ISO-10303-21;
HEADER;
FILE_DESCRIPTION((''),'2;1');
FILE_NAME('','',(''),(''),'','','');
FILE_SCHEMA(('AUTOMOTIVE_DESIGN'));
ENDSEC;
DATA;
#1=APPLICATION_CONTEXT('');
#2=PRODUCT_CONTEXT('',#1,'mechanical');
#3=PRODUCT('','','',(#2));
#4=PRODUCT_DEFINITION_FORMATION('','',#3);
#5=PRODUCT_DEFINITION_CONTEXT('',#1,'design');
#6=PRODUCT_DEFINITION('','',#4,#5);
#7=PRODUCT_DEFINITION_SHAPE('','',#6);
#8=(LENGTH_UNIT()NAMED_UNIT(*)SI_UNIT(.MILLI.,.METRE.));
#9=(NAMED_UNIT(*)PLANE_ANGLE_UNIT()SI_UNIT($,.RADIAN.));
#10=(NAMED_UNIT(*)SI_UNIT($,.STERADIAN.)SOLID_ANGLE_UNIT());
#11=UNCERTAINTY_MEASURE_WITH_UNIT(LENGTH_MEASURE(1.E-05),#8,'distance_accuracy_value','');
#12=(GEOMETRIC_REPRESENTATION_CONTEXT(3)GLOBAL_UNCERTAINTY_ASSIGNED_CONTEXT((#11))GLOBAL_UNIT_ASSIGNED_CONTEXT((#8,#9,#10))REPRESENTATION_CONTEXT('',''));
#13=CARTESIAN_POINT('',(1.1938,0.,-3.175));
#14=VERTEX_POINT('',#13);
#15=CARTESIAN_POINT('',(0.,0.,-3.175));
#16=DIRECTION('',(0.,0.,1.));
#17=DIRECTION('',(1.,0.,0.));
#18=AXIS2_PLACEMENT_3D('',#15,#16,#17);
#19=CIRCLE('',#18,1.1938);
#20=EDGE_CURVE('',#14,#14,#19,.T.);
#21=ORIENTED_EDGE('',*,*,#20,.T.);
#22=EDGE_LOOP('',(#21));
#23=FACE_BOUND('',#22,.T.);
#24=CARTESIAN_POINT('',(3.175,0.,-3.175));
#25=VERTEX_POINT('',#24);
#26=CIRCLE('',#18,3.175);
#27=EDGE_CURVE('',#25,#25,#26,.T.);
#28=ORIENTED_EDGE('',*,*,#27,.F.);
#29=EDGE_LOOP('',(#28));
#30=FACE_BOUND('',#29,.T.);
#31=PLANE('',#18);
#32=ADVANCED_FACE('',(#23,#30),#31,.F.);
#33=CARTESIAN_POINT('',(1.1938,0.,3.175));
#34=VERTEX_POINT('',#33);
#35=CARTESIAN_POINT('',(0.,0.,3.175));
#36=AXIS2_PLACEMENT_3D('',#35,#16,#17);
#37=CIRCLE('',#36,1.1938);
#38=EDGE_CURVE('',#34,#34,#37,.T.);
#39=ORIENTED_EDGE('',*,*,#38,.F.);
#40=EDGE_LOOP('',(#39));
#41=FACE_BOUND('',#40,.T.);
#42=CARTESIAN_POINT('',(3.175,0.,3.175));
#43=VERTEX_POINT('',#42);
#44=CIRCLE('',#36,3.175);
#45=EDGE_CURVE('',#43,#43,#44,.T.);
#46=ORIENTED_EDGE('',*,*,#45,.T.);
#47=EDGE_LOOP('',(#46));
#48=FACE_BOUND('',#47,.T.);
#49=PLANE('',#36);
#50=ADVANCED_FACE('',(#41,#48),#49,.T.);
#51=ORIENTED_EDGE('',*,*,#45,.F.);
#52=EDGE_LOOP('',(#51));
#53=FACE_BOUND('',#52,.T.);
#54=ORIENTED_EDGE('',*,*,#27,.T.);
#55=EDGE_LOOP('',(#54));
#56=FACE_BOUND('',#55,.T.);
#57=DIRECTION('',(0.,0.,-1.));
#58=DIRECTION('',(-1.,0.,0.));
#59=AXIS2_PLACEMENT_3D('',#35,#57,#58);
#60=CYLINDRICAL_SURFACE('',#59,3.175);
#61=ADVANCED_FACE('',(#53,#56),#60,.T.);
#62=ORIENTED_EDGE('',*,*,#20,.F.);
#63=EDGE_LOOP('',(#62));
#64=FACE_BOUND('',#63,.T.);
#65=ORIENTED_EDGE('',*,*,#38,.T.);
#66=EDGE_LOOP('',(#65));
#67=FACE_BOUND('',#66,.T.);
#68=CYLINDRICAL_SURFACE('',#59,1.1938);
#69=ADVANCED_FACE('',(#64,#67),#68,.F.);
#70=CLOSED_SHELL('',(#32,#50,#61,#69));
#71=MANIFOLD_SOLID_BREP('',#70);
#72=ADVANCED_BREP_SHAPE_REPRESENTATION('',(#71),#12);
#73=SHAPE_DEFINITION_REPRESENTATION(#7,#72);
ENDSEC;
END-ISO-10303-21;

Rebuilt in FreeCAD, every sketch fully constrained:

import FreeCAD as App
import Part
import Sketcher
from FreeCAD import Vector
Q = App.Units.Quantity

doc = App.newDocument("Part")
body = doc.addObject("PartDesign::Body", "Body")

# Sketch on XY plane
sketch1 = body.newObject("Sketcher::SketchObject", "Sketch")
sketch1.AttachmentSupport = (doc.getObject("XY_Plane"), [""])
sketch1.MapMode = "FlatFace"
sketch1.addGeometry(Part.Circle(Vector(0, 0, 0), Vector(0, 0, 1), 3.2), False)
sketch1.addGeometry(Part.Circle(Vector(0, 0, 0), Vector(0, 0, 1), 1.2), False)
sketch1.addConstraint(Sketcher.Constraint("Coincident", 0, 3, -1, 1))
sketch1.addConstraint(Sketcher.Constraint("Coincident", 1, 3, -1, 1))
sketch1.addConstraint(Sketcher.Constraint("Diameter", 0, Q("0.25 in")))
sketch1.addConstraint(Sketcher.Constraint("Diameter", 1, Q("0.094 in")))
pad1 = body.newObject("PartDesign::Pad", "Pad")
pad1.Profile = sketch1
pad1.Length = Q("0.25 in")
pad1.Midplane = True

doc.recompute()
